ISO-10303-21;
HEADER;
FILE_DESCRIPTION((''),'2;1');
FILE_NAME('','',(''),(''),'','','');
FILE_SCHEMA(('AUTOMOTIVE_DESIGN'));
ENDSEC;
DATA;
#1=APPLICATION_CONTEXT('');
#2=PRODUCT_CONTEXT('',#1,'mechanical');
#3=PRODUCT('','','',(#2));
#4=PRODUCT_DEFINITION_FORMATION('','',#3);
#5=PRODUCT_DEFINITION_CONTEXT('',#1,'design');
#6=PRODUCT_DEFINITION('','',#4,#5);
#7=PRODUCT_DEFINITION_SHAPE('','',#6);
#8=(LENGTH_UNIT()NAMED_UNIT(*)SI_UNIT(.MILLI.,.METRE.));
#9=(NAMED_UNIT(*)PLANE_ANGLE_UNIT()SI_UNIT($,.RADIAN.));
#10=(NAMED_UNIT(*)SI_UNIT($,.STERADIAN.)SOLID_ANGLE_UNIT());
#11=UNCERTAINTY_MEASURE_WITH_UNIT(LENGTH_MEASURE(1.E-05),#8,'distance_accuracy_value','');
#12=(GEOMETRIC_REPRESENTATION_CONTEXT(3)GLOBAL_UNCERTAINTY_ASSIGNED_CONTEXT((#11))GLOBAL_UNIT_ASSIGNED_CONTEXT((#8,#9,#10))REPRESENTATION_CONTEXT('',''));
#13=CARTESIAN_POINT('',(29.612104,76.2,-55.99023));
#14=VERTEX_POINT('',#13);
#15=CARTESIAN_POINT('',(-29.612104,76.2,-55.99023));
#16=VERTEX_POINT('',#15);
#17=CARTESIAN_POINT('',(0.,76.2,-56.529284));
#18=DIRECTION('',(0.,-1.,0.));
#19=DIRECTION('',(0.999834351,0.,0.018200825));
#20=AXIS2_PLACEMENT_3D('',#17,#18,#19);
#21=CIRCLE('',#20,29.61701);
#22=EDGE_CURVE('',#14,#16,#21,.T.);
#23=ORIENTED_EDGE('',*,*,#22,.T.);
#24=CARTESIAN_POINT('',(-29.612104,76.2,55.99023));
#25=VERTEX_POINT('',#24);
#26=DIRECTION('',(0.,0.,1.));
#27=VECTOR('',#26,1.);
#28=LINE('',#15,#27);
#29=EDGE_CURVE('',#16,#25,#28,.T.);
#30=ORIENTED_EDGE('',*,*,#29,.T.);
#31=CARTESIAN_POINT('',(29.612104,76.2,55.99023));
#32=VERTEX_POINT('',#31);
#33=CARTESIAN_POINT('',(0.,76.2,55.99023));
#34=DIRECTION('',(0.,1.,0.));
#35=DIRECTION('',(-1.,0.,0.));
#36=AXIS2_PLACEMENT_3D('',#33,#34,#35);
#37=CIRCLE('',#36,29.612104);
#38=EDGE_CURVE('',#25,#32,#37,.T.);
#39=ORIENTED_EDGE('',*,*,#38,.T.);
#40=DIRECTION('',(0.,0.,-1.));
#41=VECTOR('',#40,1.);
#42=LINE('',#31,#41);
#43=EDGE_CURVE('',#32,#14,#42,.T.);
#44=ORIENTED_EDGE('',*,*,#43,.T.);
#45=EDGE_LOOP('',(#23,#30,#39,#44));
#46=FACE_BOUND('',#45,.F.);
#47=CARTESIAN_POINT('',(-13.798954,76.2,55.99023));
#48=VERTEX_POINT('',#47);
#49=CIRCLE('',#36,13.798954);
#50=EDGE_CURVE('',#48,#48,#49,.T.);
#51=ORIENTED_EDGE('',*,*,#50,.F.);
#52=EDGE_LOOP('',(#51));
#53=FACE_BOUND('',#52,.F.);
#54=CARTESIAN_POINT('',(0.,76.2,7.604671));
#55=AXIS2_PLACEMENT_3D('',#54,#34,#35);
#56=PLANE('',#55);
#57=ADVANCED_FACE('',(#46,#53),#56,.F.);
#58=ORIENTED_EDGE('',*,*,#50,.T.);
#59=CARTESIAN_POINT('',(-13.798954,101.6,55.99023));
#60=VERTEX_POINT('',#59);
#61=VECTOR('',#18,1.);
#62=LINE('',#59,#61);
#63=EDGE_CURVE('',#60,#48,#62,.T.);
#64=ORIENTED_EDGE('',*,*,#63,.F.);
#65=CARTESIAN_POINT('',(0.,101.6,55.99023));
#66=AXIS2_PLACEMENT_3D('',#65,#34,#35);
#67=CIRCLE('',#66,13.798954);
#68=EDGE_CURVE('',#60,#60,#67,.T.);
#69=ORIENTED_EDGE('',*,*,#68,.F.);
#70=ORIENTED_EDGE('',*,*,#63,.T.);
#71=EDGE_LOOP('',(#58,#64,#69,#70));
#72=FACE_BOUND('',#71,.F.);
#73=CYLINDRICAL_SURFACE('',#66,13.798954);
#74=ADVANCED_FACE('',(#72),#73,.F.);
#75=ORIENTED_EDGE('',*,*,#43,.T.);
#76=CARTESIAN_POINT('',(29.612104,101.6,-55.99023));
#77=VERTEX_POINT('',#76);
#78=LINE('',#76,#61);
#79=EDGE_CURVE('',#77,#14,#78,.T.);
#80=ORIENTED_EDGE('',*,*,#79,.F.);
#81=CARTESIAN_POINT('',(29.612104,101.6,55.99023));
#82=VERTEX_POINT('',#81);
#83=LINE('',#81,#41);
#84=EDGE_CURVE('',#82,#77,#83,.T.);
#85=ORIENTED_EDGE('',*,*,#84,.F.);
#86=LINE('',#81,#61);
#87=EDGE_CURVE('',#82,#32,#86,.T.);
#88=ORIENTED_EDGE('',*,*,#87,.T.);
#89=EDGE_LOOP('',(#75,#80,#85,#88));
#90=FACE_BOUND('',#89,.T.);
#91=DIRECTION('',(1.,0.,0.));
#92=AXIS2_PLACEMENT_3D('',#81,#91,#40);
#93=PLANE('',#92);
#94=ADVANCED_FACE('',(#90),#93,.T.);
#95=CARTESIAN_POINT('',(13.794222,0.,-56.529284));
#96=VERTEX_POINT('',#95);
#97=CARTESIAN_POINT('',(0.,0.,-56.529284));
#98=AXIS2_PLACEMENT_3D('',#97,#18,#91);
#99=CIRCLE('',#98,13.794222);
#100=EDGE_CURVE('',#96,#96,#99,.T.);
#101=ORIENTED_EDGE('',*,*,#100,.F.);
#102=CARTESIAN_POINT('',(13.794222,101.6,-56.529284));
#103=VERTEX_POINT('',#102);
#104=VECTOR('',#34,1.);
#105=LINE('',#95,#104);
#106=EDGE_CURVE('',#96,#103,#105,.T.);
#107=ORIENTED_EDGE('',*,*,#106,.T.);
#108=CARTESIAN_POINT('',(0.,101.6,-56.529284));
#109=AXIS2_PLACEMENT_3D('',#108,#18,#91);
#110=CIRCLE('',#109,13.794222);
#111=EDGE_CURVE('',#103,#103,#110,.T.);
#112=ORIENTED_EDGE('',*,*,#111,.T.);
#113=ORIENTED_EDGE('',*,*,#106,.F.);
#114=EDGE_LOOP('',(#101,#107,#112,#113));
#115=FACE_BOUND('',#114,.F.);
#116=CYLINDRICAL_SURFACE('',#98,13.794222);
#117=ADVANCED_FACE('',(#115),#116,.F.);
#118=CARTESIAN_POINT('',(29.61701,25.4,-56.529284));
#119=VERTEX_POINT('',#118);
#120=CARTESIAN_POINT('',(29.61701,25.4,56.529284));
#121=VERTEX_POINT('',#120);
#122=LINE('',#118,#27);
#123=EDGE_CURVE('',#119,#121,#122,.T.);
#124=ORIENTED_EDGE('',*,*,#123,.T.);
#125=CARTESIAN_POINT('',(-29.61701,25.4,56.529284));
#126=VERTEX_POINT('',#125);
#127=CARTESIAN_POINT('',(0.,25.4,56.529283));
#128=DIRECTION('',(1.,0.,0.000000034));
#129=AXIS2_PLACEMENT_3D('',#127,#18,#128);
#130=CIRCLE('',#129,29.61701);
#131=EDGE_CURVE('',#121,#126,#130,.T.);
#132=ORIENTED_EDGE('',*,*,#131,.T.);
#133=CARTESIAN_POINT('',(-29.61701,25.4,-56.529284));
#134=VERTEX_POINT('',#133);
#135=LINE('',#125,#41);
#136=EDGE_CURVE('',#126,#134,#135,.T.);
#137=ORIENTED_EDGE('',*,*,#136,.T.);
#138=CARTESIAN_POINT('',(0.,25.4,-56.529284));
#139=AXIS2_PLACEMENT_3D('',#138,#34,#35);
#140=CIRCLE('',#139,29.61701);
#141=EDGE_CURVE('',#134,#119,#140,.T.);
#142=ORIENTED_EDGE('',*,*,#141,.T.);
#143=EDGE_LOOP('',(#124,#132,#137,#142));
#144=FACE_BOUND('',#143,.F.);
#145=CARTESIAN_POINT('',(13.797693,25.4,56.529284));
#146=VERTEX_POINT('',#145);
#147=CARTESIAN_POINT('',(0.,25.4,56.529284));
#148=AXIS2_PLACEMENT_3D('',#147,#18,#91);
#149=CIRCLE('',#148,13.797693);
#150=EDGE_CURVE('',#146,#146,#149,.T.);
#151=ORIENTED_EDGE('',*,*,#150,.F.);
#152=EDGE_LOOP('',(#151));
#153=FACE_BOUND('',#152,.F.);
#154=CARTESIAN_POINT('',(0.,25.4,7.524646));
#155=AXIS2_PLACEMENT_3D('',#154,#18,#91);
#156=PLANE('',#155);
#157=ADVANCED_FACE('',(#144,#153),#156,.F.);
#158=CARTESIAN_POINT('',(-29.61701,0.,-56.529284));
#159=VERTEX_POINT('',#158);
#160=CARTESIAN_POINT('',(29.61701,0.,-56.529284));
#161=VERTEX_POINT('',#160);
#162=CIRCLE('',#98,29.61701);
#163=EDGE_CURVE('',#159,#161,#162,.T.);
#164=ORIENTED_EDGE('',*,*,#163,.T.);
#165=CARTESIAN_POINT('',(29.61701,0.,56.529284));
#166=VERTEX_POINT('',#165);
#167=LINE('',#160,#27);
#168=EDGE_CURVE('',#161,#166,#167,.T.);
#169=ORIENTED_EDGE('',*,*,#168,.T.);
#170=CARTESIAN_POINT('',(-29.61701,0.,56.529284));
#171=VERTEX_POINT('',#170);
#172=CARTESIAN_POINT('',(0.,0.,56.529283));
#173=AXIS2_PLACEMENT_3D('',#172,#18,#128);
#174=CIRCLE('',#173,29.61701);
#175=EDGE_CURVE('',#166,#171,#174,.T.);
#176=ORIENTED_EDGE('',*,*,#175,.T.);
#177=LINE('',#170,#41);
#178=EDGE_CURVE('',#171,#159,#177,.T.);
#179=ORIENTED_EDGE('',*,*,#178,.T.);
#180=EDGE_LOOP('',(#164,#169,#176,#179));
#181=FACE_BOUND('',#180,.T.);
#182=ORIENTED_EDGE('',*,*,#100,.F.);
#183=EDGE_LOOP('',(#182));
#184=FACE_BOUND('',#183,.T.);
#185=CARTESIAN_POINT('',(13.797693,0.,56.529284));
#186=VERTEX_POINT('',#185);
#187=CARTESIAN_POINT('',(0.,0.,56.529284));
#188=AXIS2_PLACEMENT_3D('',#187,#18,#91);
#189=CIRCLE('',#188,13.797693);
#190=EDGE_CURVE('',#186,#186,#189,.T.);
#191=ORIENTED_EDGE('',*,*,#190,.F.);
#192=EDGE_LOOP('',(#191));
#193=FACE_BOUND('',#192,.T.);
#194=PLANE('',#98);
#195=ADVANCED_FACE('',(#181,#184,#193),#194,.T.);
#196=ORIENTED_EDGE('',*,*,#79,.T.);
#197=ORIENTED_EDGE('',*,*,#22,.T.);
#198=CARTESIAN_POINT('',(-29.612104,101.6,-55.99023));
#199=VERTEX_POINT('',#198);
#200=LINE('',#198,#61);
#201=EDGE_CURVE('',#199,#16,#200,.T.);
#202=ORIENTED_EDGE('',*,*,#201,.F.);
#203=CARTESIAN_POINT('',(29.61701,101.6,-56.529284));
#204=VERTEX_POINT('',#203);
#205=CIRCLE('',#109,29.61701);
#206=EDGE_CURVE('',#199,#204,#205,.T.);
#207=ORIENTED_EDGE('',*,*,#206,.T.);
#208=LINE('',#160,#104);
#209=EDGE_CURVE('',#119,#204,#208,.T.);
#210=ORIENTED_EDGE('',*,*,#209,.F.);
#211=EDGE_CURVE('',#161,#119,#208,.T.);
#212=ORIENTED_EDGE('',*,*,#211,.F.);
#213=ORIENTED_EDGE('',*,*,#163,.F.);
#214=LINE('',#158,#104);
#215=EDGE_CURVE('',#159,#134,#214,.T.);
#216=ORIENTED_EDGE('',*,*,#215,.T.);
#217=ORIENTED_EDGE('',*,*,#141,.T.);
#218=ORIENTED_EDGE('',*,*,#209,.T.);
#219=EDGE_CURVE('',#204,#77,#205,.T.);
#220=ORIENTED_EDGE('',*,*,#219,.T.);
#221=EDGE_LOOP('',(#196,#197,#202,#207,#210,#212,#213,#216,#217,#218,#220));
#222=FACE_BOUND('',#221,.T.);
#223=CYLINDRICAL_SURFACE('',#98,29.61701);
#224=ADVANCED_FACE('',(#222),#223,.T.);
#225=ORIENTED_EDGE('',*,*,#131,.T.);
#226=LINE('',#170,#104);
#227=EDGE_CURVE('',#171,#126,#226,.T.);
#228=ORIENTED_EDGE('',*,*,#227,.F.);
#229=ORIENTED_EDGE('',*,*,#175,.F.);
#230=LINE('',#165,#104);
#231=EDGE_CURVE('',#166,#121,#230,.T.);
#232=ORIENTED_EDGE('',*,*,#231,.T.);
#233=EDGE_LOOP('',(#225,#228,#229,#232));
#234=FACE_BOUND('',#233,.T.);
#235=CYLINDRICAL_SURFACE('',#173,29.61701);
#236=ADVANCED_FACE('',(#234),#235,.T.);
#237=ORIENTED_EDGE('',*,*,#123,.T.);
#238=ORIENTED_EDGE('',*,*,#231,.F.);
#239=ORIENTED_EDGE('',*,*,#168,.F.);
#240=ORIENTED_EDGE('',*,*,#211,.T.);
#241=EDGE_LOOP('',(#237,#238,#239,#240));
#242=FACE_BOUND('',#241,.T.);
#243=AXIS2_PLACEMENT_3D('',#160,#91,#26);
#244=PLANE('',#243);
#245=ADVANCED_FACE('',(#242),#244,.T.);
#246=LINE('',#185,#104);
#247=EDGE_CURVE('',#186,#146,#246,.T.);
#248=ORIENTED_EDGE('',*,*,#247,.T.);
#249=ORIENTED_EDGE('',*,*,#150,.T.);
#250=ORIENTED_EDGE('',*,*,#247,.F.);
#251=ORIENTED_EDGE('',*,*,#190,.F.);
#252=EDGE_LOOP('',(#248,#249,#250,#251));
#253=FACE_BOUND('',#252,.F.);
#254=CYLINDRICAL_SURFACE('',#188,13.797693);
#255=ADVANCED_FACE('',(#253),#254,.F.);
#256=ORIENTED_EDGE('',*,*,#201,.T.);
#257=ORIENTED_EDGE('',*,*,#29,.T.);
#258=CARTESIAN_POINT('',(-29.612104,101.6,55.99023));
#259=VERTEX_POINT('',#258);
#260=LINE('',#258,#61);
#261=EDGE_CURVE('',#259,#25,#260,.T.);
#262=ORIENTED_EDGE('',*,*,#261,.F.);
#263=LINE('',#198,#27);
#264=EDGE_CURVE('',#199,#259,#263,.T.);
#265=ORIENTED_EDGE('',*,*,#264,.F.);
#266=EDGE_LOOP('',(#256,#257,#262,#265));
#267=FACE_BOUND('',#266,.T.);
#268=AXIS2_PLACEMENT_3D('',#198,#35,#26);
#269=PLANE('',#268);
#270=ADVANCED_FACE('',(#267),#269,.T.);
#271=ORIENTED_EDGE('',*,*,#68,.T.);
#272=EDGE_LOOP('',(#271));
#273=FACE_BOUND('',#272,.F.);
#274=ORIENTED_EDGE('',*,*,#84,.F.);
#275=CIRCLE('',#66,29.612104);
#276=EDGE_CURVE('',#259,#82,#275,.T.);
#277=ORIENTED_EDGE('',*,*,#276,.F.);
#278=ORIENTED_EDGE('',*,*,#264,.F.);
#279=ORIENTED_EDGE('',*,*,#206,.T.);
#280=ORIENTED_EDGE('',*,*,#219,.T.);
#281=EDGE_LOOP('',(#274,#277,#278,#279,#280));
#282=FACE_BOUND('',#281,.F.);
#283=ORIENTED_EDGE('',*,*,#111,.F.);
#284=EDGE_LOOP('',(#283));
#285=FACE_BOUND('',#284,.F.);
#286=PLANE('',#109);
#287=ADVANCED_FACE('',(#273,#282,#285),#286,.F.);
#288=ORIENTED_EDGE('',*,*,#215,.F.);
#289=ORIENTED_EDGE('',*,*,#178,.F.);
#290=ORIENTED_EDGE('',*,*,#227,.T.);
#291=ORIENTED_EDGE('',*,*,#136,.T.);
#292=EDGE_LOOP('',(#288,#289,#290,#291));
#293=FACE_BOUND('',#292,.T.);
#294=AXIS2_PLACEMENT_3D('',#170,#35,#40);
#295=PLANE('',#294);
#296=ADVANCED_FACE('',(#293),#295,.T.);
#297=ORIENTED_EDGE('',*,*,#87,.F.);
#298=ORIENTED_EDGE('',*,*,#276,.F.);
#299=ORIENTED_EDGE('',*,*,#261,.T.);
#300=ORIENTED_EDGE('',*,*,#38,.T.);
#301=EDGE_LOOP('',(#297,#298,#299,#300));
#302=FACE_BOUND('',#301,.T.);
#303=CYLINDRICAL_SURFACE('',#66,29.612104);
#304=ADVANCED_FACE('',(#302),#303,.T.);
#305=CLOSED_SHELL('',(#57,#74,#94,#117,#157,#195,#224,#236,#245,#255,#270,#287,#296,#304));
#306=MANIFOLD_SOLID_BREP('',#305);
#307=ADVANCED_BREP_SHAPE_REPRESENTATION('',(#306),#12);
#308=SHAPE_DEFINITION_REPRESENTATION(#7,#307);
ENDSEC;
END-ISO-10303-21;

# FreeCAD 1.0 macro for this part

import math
import FreeCAD as App
import Part
import Sketcher
Q = App.Units.Quantity

doc = App.newDocument("Part")
body = doc.addObject("PartDesign::Body", "Body")

# Sketch on XZ plane
sketch1 = body.newObject("Sketcher::SketchObject", "Sketch")
sketch1.AttachmentSupport = (doc.getObject("XZ_Plane"), [""])
sketch1.MapMode = "FlatFace"
sketch1.addGeometry([
    Part.ArcOfCircle(Part.Circle(App.Vector(0, -57, 0), App.Vector(0, 0, 1), 30), math.radians(0), math.radians(180)),  # 0
    Part.LineSegment(App.Vector(30, -57, 0), App.Vector(30, 57, 0)),  # 1
    Part.ArcOfCircle(Part.Circle(App.Vector(0, 57, 0), App.Vector(0, 0, 1), 30), math.radians(0), math.radians(180)),  # 2
    Part.LineSegment(App.Vector(-30, 57, 0), App.Vector(-30, -57, 0)),  # 3
    Part.Circle(App.Vector(0, 57, 0), App.Vector(0, 0, 1), 14),  # 4
], False)
sketch1.addConstraint([
    Sketcher.Constraint("Tangent", 0, 1, 1, 1),
    Sketcher.Constraint("Tangent", 1, 2, 2, 1),
    Sketcher.Constraint("Tangent", 2, 2, 3, 1),
    Sketcher.Constraint("Tangent", 3, 2, 0, 2),
    Sketcher.Constraint("Vertical", 1),
    Sketcher.Constraint("Vertical", 3),
    Sketcher.Constraint("Coincident", 4, 3, 2, 3),
    Sketcher.Constraint("Symmetric", 0, 3, 2, 3, -1, 1),
    Sketcher.Constraint("Radius", 0, 29.61701),
    Sketcher.Constraint("Diameter", 4, 27.595386),
    Sketcher.Constraint("DistanceY", 1, 1, 1, 2, 113.058568),
])
pad1 = body.newObject("PartDesign::Pad", "Pad")
pad1.Profile = sketch1
pad1.Length = Q("1 in")
pad1.Reversed = True

# Sketch on XZ plane
sketch2 = body.newObject("Sketcher::SketchObject", "Sketch001")
sketch2.AttachmentSupport = (doc.getObject("XZ_Plane"), [""])
sketch2.MapMode = "FlatFace"
sketch2.addGeometry([
    Part.Circle(App.Vector(0, -57, 0), App.Vector(0, 0, 1), 30),
    Part.Circle(App.Vector(0, -57, 0), App.Vector(0, 0, 1), 14),
], False)
sketch2.addConstraint([
    Sketcher.Constraint("Coincident", 1, 3, 0, 3),
    Sketcher.Constraint("PointOnObject", 0, 3, -2),
    Sketcher.Constraint("Diameter", 0, 59.23402),
    Sketcher.Constraint("Diameter", 1, 27.588444),
    Sketcher.Constraint("DistanceY", 0, 3, -1, 1, 56.529284),
])
pad2 = body.newObject("PartDesign::Pad", "Pad001")
pad2.Profile = sketch2
pad2.Length = Q("4 in")
pad2.Reversed = True

# Sketch on XZ plane
sketch3 = body.newObject("Sketcher::SketchObject", "Sketch002")
sketch3.AttachmentSupport = (doc.getObject("XZ_Plane"), [""])
sketch3.MapMode = "FlatFace"
sketch3.AttachmentOffset = App.Placement(App.Vector(0, 0, -4 * 25.4), App.Rotation())
sketch3.addGeometry([
    Part.ArcOfCircle(Part.Circle(App.Vector(0, -57, 0), App.Vector(0, 0, 1), 30), math.radians(1), math.radians(179)),  # 0
    Part.LineSegment(App.Vector(-30, -56, 0), App.Vector(-30, 56, 0)),  # 1
    Part.ArcOfCircle(Part.Circle(App.Vector(0, 56, 0), App.Vector(0, 0, 1), 30), math.radians(0), math.radians(180)),  # 2
    Part.LineSegment(App.Vector(30, 56, 0), App.Vector(30, -56, 0)),  # 3
    Part.Circle(App.Vector(0, 56, 0), App.Vector(0, 0, 1), 14),  # 4
], False)
sketch3.addConstraint([
    Sketcher.Constraint("Coincident", 0, 2, 1, 1),
    Sketcher.Constraint("Tangent", 1, 2, 2, 2),
    Sketcher.Constraint("Tangent", 2, 1, 3, 1),
    Sketcher.Constraint("Coincident", 3, 2, 0, 1),
    Sketcher.Constraint("Vertical", 1),
    Sketcher.Constraint("Vertical", 3),
    Sketcher.Constraint("Coincident", 4, 3, 2, 3),
    Sketcher.Constraint("Symmetric", 0, 2, 2, 1, -1, 1),
    Sketcher.Constraint("PointOnObject", 0, 3, -2),
    Sketcher.Constraint("Diameter", 4, 27.597908),
    Sketcher.Constraint("Radius", 0, 29.61701),
    Sketcher.Constraint("Radius", 2, 29.612104),
    Sketcher.Constraint("DistanceY", 1, 1, 1, 2, 111.98046),
])
pad3 = body.newObject("PartDesign::Pad", "Pad002")
pad3.Profile = sketch3
pad3.Length = Q("1 in")

doc.recompute()
